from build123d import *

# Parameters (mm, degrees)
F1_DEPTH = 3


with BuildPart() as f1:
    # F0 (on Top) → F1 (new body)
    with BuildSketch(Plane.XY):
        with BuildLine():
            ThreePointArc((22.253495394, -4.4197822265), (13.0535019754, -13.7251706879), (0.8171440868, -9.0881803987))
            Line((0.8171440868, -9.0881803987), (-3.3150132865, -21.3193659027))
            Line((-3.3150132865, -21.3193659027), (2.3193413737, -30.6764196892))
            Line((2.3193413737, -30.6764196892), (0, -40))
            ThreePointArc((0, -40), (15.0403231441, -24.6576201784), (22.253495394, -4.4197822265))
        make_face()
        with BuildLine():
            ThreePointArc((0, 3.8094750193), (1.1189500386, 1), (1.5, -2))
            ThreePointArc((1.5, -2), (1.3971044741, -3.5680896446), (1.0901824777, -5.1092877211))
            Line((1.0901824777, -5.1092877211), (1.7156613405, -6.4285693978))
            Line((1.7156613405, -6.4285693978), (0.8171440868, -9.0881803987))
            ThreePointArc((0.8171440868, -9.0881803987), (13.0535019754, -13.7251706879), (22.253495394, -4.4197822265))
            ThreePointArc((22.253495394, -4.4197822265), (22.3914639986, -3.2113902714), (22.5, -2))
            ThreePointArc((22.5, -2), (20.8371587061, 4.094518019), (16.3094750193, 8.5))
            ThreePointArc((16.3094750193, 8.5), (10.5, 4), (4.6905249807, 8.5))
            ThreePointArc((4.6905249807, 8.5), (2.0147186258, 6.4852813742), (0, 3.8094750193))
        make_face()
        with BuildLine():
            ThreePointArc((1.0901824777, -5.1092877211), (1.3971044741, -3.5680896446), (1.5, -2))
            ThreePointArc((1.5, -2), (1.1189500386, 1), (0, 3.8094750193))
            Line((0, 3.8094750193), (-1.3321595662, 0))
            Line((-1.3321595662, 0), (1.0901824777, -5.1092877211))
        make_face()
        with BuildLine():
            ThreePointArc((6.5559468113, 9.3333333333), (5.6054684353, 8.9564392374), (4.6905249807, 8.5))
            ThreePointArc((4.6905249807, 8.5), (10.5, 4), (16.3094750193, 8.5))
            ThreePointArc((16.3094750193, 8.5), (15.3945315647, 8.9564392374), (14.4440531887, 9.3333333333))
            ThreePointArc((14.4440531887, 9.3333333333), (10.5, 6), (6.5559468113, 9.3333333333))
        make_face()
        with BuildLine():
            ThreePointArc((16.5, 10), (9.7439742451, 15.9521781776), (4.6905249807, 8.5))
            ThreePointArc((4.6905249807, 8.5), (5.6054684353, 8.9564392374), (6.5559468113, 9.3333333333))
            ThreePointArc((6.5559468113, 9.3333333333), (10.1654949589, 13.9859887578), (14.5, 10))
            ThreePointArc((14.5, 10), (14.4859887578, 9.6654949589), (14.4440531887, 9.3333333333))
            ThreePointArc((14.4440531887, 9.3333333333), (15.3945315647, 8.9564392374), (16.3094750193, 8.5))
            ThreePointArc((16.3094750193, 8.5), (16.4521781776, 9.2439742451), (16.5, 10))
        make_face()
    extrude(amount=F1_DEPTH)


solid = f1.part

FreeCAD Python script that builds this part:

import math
import FreeCAD as App
import Part
import Sketcher

V = App.Vector
Q = App.Units.Quantity

doc = App.newDocument("Part")
body = doc.addObject("PartDesign::Body", "Body")

# Sketch on XY plane
sketch1 = doc.addObject("Sketcher::SketchObject", "Sketch")
body.addObject(sketch1)
sketch1.AttachmentSupport = (doc.XY_Plane, [""])
sketch1.MapMode = "FlatFace"
sketch1.addGeometry([
    Part.LineSegment(V(0.8, -9.1, 0), V(-3.3, -21.3, 0)),  # 0
    Part.LineSegment(V(-3.3, -21.3, 0), V(2.3, -30.7, 0)),  # 1
    Part.LineSegment(V(2.3, -30.7, 0), V(0, -40, 0)),  # 2
    Part.ArcOfCircle(Part.Circle(V(-27.4, 1.9, 0), V(0, 0, 1), 50), math.radians(-57), math.radians(-7)),  # 3
    Part.ArcOfCircle(Part.Circle(V(-27.4, 1.9, 0), V(0, 0, 1), 50), math.radians(-7.21), math.radians(-4.42)),  # 4
    Part.ArcOfCircle(Part.Circle(V(10.5, -2, 0), V(0, 0, 1), 12), math.radians(0), math.radians(61)),  # 5
    Part.ArcOfCircle(Part.Circle(V(10.5, 10, 0), V(0, 0, 1), 6), math.radians(-14.48), math.radians(0)),  # 6
    Part.ArcOfCircle(Part.Circle(V(10.5, 10, 0), V(0, 0, 1), 6), math.radians(0), math.radians(194)),  # 7
    Part.ArcOfCircle(Part.Circle(V(10.5, -2, 0), V(0, 0, 1), 12), math.radians(119), math.radians(151)),  # 8
    Part.LineSegment(V(0, 3.8, 0), V(-1.3, 0, 0)),  # 9
    Part.LineSegment(V(-1.3, 0, 0), V(1.1, -5.1, 0)),  # 10
    Part.LineSegment(V(1.1, -5.1, 0), V(1.7, -6.4, 0)),  # 11
    Part.LineSegment(V(1.7, -6.4, 0), V(0.8, -9.1, 0)),  # 12
    Part.ArcOfCircle(Part.Circle(V(10.5, 10, 0), V(0, 0, 1), 4), math.radians(-170), math.radians(-10)),  # 13
    Part.ArcOfCircle(Part.Circle(V(10.5, 10, 0), V(0, 0, 1), 4), math.radians(0), math.radians(190)),  # 14
    Part.ArcOfCircle(Part.Circle(V(10.5, 10, 0), V(0, 0, 1), 4), math.radians(-9.59), math.radians(0)),  # 15
], False)
sketch1.addConstraint([
    Sketcher.Constraint("Coincident", 0, 2, 1, 1),
    Sketcher.Constraint("Coincident", 1, 2, 2, 1),
    Sketcher.Constraint("Coincident", 2, 2, 3, 1),
    Sketcher.Constraint("Tangent", 3, 2, 4, 1),
    Sketcher.Constraint("Coincident", 4, 2, 5, 1),
    Sketcher.Constraint("Coincident", 5, 2, 6, 1),
    Sketcher.Constraint("Tangent", 6, 2, 7, 1),
    Sketcher.Constraint("Coincident", 7, 2, 8, 1),
    Sketcher.Constraint("Coincident", 8, 2, 9, 1),
    Sketcher.Constraint("Coincident", 9, 2, 10, 1),
    Sketcher.Constraint("Coincident", 10, 2, 11, 1),
    Sketcher.Constraint("Coincident", 11, 2, 12, 1),
    Sketcher.Constraint("Coincident", 12, 2, 0, 1),
    Sketcher.Constraint("Tangent", 13, 1, 14, 2),
    Sketcher.Constraint("Tangent", 14, 1, 15, 2),
    Sketcher.Constraint("Tangent", 15, 1, 13, 2),
    Sketcher.Constraint("Coincident", 8, 3, 5, 3),
    Sketcher.Constraint("Coincident", 13, 3, 6, 3),
    Sketcher.Constraint("Equal", 3, 4),
    Sketcher.Constraint("Equal", 6, 7),
    Sketcher.Constraint("Equal", 5, 8),
    Sketcher.Constraint("PointOnObject", 2, 2, -2),
    Sketcher.Constraint("PointOnObject", 8, 2, -2),
    Sketcher.Constraint("PointOnObject", 9, 2, -1),
    Sketcher.Constraint("Parallel", 10, 11),
    Sketcher.Constraint("Parallel", 0, 12),
    Sketcher.Constraint("Horizontal", 8, 3, 4, 2),
    Sketcher.Constraint("Horizontal", 15, 3, 6, 2),
    Sketcher.Constraint("Horizontal", 5, 2, 7, 2),
    Sketcher.Constraint("Horizontal", 6, 2, 14, 1),
    Sketcher.Constraint("Horizontal", 13, 1, 15, 1),
    Sketcher.Constraint("Radius", 3, Q("50 mm")),
    Sketcher.Constraint("Radius", 5, Q("12 mm")),
    Sketcher.Constraint("Radius", 6, Q("6 mm")),
    Sketcher.Constraint("Radius", 13, Q("4 mm")),
    Sketcher.Constraint("DistanceY", 5, 3, -1, 1, Q("2 mm")),
    Sketcher.Constraint("DistanceY", -1, 1, 6, 3, Q("10 mm")),
    Sketcher.Constraint("DistanceY", 2, 2, -1, 1, Q("40 mm")),
    Sketcher.Constraint("DistanceX", -1, 1, 5, 3, Q("10.5 mm")),
    Sketcher.Constraint("Distance", 0, Q("12.91033 mm")),
    Sketcher.Constraint("Distance", 2, Q("9.607731 mm")),
    Sketcher.Constraint("Distance", 10, Q("5.654429 mm")),
    Sketcher.Constraint("DistanceX", -1, 1, 1, 2, Q("2.319341 mm")),
    Sketcher.Constraint("DistanceX", 9, 2, -1, 1, Q("1.33216 mm")),
    Sketcher.Constraint("DistanceX", -1, 1, 11, 2, Q("1.715661 mm")),
    Sketcher.Constraint("DistanceY", 11, 2, -1, 1, Q("6.428569 mm")),
    Sketcher.Constraint("DistanceY", 12, 2, -1, 1, Q("9.08818 mm")),
    Sketcher.Constraint("DistanceY", 0, 2, 4, 3, Q("23.175279 mm")),
    Sketcher.Constraint("DistanceX", 7, 2, 13, 1, Q("1.865422 mm")),
    Sketcher.Constraint("DistanceX", -1, 1, 3, 2, Q("22.253495 mm")),
])
pad1 = doc.addObject("PartDesign::Pad", "Pad")
body.addObject(pad1)
pad1.Profile = sketch1
pad1.Length = 3

doc.recompute()
